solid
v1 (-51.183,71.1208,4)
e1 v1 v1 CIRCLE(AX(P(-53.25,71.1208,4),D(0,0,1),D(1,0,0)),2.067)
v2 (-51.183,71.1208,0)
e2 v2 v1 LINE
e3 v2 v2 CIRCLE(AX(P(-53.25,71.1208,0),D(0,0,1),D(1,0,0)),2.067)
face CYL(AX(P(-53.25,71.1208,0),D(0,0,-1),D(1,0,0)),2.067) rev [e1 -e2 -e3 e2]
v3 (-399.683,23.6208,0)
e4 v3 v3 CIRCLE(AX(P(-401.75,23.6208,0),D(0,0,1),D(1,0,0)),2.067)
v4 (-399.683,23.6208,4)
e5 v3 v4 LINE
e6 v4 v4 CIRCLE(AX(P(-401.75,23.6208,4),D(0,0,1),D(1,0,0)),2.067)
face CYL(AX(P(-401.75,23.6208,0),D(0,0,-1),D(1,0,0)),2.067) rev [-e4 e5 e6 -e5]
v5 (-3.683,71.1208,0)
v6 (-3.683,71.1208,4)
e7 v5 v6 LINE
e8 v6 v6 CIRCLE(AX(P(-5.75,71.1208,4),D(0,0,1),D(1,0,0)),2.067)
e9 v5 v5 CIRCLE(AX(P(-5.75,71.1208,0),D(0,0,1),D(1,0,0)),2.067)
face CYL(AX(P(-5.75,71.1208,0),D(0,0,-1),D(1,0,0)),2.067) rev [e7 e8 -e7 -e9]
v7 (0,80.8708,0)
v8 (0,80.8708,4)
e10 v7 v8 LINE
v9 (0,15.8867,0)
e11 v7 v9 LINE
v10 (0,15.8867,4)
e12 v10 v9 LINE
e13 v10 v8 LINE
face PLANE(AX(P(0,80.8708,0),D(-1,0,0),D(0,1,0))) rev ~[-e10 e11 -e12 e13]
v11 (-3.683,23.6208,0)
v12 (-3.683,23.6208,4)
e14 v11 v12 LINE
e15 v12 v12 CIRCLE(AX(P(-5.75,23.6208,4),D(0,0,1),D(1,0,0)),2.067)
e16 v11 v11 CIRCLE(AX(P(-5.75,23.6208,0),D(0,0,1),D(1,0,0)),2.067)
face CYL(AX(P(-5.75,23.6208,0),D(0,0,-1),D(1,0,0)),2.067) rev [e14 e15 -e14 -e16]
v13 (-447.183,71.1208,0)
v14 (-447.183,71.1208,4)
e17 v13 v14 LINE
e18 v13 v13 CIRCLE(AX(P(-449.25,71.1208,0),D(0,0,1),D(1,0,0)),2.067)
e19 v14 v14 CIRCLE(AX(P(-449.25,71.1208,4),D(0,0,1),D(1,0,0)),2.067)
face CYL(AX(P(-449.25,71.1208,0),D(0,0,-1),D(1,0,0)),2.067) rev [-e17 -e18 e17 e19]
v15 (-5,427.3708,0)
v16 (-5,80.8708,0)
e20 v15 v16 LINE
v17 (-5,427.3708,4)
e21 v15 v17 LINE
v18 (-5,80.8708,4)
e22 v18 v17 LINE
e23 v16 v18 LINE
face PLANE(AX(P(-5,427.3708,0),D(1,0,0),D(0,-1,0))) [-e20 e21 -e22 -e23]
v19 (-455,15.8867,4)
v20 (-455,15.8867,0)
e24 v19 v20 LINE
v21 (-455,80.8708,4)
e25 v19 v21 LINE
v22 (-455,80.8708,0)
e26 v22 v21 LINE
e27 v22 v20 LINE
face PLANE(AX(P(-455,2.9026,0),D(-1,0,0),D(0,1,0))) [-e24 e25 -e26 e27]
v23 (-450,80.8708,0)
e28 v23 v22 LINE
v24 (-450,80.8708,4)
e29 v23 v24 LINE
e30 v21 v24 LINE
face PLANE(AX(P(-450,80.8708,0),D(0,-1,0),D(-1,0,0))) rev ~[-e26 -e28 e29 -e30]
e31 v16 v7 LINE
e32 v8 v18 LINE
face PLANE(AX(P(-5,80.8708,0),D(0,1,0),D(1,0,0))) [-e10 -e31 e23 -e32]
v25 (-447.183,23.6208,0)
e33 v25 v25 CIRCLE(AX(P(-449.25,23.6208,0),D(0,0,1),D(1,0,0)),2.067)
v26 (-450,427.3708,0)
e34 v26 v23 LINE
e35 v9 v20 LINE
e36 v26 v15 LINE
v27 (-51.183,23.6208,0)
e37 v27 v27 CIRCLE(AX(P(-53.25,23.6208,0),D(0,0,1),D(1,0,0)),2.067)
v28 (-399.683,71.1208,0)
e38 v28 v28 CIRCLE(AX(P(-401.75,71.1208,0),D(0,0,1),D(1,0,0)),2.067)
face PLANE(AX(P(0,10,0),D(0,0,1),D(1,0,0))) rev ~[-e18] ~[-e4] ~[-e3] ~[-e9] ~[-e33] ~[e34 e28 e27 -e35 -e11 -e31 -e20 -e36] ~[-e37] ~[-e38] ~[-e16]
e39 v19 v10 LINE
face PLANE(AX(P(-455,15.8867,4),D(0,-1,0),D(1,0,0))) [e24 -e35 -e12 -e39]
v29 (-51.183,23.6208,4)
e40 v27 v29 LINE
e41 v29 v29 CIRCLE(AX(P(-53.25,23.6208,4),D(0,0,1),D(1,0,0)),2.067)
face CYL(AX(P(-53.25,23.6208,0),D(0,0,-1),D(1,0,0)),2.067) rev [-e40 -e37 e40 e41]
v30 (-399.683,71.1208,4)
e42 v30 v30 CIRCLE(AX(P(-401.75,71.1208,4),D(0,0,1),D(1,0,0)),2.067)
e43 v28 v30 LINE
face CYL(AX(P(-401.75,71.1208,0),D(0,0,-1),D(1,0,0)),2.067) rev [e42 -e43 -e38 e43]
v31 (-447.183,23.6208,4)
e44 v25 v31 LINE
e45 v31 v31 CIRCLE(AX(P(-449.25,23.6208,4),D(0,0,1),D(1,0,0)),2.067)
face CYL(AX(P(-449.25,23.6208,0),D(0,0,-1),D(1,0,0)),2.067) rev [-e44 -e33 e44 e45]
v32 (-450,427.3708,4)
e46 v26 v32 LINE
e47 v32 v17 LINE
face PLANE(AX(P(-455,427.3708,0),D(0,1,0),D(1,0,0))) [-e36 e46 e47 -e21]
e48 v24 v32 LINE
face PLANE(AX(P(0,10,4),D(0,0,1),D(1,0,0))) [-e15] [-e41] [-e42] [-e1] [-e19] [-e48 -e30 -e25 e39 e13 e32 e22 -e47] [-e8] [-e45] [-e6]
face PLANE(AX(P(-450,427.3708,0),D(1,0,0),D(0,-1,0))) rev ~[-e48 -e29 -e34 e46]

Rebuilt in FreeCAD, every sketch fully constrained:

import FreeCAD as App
import Part
import Sketcher
from FreeCAD import Vector

doc = App.newDocument("Part")
body = doc.addObject("PartDesign::Body", "Body")

sketch1 = body.newObject("Sketcher::SketchObject", "Sketch")
sketch1.AttachmentSupport = (doc.getObject("XY_Plane"), [""])
sketch1.MapMode = "FlatFace"
sketch1.addGeometry([
    Part.LineSegment(Vector(-455, 2.9, 0), Vector(0, 2.9, 0)),
    Part.LineSegment(Vector(0, 2.9, 0), Vector(0, 427.4, 0)),
    Part.LineSegment(Vector(0, 427.4, 0), Vector(-455, 427.4, 0)),
    Part.LineSegment(Vector(-455, 427.4, 0), Vector(-455, 2.9, 0)),
    Part.Circle(Vector(-53.2, 71.1, 0), Vector(0, 0, 1), 2.1),
    Part.Circle(Vector(-5.8, 71.1, 0), Vector(0, 0, 1), 2.1),
    Part.Circle(Vector(-449.2, 23.6, 0), Vector(0, 0, 1), 2.1),
    Part.Circle(Vector(-401.8, 23.6, 0), Vector(0, 0, 1), 2.1),
    Part.Circle(Vector(-449.2, 71.1, 0), Vector(0, 0, 1), 2.1),
    Part.Circle(Vector(-401.8, 71.1, 0), Vector(0, 0, 1), 2.1),
    Part.Circle(Vector(-227.5, 11.9, 0), Vector(0, 0, 1), 4),
    Part.Circle(Vector(-53.2, 23.6, 0), Vector(0, 0, 1), 2.1),
    Part.Circle(Vector(-5.8, 23.6, 0), Vector(0, 0, 1), 2.1),
], False)
sketch1.addConstraint([
    Sketcher.Constraint("Coincident", 0, 2, 1, 1),
    Sketcher.Constraint("Coincident", 1, 2, 2, 1),
    Sketcher.Constraint("Coincident", 2, 2, 3, 1),
    Sketcher.Constraint("Coincident", 3, 2, 0, 1),
    Sketcher.Constraint("Horizontal", 0),
    Sketcher.Constraint("Vertical", 1),
    Sketcher.Constraint("Horizontal", 2),
    Sketcher.Constraint("Vertical", 3),
    Sketcher.Constraint("Equal", 4, 5),
    Sketcher.Constraint("Equal", 5, 6),
    Sketcher.Constraint("Equal", 6, 7),
    Sketcher.Constraint("Equal", 7, 8),
    Sketcher.Constraint("Equal", 8, 9),
    Sketcher.Constraint("Equal", 9, 11),
    Sketcher.Constraint("Equal", 11, 12),
    Sketcher.Constraint("PointOnObject", 0, 2, -2),
    Sketcher.Constraint("Horizontal", 4, 3, 5, 3),
    Sketcher.Constraint("Horizontal", 6, 3, 7, 3),
    Sketcher.Constraint("Horizontal", 5, 3, 8, 3),
    Sketcher.Constraint("Horizontal", 8, 3, 9, 3),
    Sketcher.Constraint("Horizontal", 7, 3, 11, 3),
    Sketcher.Constraint("Horizontal", 11, 3, 12, 3),
    Sketcher.Constraint("Vertical", 6, 3, 8, 3),
    Sketcher.Constraint("Vertical", 7, 3, 9, 3),
    Sketcher.Constraint("Vertical", 4, 3, 11, 3),
    Sketcher.Constraint("Vertical", 5, 3, 12, 3),
    Sketcher.Constraint("Diameter", 10, 8.0),
    Sketcher.Constraint("DistanceX", 0, 1, 0, 2, 455.0),
    Sketcher.Constraint("Diameter", 4, 4.134),
    Sketcher.Constraint("DistanceX", 6, 3, 4, 3, 396.0),
    Sketcher.Constraint("DistanceX", 7, 3, 5, 3, 396.0),
    Sketcher.Constraint("DistanceX", 10, 3, -1, 1, 227.5),
    Sketcher.Constraint("DistanceX", 4, 3, 5, 3, 47.5),
    Sketcher.Constraint("DistanceY", 6, 3, 4, 3, 47.5),
    Sketcher.Constraint("DistanceX", 4, 3, -1, 1, 53.25),
    Sketcher.Constraint("DistanceY", 5, 3, 1, 2, 356.25),
    Sketcher.Constraint("DistanceY", 1, 1, 1, 2, 424.4682),
    Sketcher.Constraint("DistanceY", 10, 3, 7, 3, 11.734),
    Sketcher.Constraint("DistanceY", -1, 1, 4, 3, 71.1208),
])
pad1 = body.newObject("PartDesign::Pad", "Pad")
pad1.Profile = sketch1
pad1.Length = 4

sketch2 = body.newObject("Sketcher::SketchObject", "Sketch001")
sketch2.AttachmentSupport = (doc.getObject("XY_Plane"), [""])
sketch2.MapMode = "FlatFace"
sketch2.AttachmentOffset = App.Placement(Vector(0, 0, 4), App.Rotation())
sketch2.addGeometry([
    Part.LineSegment(Vector(-455, 2.9, 0), Vector(0, 2.9, 0)),
    Part.LineSegment(Vector(0, 2.9, 0), Vector(0, 15.9, 0)),
    Part.LineSegment(Vector(0, 15.9, 0), Vector(-227.5, 15.9, 0)),
    Part.LineSegment(Vector(-227.5, 15.9, 0), Vector(-455, 15.9, 0)),
    Part.LineSegment(Vector(-455, 15.9, 0), Vector(-455, 2.9, 0)),
    Part.Circle(Vector(-227.5, 11.9, 0), Vector(0, 0, 1), 4),
], False)
sketch2.addConstraint([
    Sketcher.Constraint("Coincident", 0, 2, 1, 1),
    Sketcher.Constraint("Coincident", 1, 2, 2, 1),
    Sketcher.Constraint("Coincident", 2, 2, 3, 1),
    Sketcher.Constraint("Coincident", 3, 2, 4, 1),
    Sketcher.Constraint("Coincident", 4, 2, 0, 1),
    Sketcher.Constraint("Horizontal", 0),
    Sketcher.Constraint("Vertical", 1),
    Sketcher.Constraint("Horizontal", 2),
    Sketcher.Constraint("Horizontal", 3),
    Sketcher.Constraint("Vertical", 4),
    Sketcher.Constraint("PointOnObject", 0, 2, -2),
    Sketcher.Constraint("Vertical", 5, 3, 2, 2),
    Sketcher.Constraint("Equal", 2, 3),
    Sketcher.Constraint("Diameter", 5, 8.0),
    Sketcher.Constraint("DistanceX", 0, 1, 0, 2, 455.0),
    Sketcher.Constraint("DistanceY", 5, 3, 1, 2, 4.0),
    Sketcher.Constraint("DistanceY", 1, 1, 1, 2, 12.984),
    Sketcher.Constraint("DistanceY", -1, 1, 5, 3, 11.8867),
])
pocket1 = body.newObject("PartDesign::Pocket", "Pocket")
pocket1.Profile = sketch2
pocket1.Length = 4

sketch3 = body.newObject("Sketcher::SketchObject", "Sketch002")
sketch3.AttachmentSupport = (doc.getObject("XY_Plane"), [""])
sketch3.MapMode = "FlatFace"
sketch3.addGeometry([
    Part.LineSegment(Vector(0, 427, 0), Vector(0, 81, 0)),
    Part.LineSegment(Vector(0, 81, 0), Vector(-5, 81, 0)),
    Part.LineSegment(Vector(-5, 81, 0), Vector(-5, 427, 0)),
    Part.LineSegment(Vector(-5, 427, 0), Vector(0, 427, 0)),
    Part.LineSegment(Vector(-450, 81, 0), Vector(-455, 81, 0)),
    Part.LineSegment(Vector(-455, 81, 0), Vector(-455, 427, 0)),
    Part.LineSegment(Vector(-455, 427, 0), Vector(-450, 427, 0)),
    Part.LineSegment(Vector(-450, 427, 0), Vector(-450, 81, 0)),
], False)
sketch3.addConstraint([
    Sketcher.Constraint("Coincident", 0, 2, 1, 1),
    Sketcher.Constraint("Coincident", 1, 2, 2, 1),
    Sketcher.Constraint("Coincident", 2, 2, 3, 1),
    Sketcher.Constraint("Coincident", 3, 2, 0, 1),
    Sketcher.Constraint("Coincident", 4, 2, 5, 1),
    Sketcher.Constraint("Coincident", 5, 2, 6, 1),
    Sketcher.Constraint("Coincident", 6, 2, 7, 1),
    Sketcher.Constraint("Coincident", 7, 2, 4, 1),
    Sketcher.Constraint("Vertical", 0),
    Sketcher.Constraint("Horizontal", 1),
    Sketcher.Constraint("Vertical", 2),
    Sketcher.Constraint("Horizontal", 3),
    Sketcher.Constraint("Horizontal", 4),
    Sketcher.Constraint("Vertical", 5),
    Sketcher.Constraint("Horizontal", 6),
    Sketcher.Constraint("Vertical", 7),
    Sketcher.Constraint("PointOnObject", 0, 2, -2),
    Sketcher.Constraint("Horizontal", 1, 2, 4, 2),
    Sketcher.Constraint("Horizontal", 3, 2, 5, 2),
    Sketcher.Constraint("Equal", 3, 4),
    Sketcher.Constraint("DistanceX", 1, 2, 1, 1, 5.0),
    Sketcher.Constraint("DistanceY", 0, 2, 0, 1, 346.5),
    Sketcher.Constraint("DistanceX", 4, 2, -1, 1, 455.0),
    Sketcher.Constraint("DistanceY", -1, 1, 0, 2, 80.8708),
])
pocket2 = body.newObject("PartDesign::Pocket", "Pocket001")
pocket2.Profile = sketch3
pocket2.Type = "ThroughAll"
pocket2.Reversed = True

doc.recompute()
